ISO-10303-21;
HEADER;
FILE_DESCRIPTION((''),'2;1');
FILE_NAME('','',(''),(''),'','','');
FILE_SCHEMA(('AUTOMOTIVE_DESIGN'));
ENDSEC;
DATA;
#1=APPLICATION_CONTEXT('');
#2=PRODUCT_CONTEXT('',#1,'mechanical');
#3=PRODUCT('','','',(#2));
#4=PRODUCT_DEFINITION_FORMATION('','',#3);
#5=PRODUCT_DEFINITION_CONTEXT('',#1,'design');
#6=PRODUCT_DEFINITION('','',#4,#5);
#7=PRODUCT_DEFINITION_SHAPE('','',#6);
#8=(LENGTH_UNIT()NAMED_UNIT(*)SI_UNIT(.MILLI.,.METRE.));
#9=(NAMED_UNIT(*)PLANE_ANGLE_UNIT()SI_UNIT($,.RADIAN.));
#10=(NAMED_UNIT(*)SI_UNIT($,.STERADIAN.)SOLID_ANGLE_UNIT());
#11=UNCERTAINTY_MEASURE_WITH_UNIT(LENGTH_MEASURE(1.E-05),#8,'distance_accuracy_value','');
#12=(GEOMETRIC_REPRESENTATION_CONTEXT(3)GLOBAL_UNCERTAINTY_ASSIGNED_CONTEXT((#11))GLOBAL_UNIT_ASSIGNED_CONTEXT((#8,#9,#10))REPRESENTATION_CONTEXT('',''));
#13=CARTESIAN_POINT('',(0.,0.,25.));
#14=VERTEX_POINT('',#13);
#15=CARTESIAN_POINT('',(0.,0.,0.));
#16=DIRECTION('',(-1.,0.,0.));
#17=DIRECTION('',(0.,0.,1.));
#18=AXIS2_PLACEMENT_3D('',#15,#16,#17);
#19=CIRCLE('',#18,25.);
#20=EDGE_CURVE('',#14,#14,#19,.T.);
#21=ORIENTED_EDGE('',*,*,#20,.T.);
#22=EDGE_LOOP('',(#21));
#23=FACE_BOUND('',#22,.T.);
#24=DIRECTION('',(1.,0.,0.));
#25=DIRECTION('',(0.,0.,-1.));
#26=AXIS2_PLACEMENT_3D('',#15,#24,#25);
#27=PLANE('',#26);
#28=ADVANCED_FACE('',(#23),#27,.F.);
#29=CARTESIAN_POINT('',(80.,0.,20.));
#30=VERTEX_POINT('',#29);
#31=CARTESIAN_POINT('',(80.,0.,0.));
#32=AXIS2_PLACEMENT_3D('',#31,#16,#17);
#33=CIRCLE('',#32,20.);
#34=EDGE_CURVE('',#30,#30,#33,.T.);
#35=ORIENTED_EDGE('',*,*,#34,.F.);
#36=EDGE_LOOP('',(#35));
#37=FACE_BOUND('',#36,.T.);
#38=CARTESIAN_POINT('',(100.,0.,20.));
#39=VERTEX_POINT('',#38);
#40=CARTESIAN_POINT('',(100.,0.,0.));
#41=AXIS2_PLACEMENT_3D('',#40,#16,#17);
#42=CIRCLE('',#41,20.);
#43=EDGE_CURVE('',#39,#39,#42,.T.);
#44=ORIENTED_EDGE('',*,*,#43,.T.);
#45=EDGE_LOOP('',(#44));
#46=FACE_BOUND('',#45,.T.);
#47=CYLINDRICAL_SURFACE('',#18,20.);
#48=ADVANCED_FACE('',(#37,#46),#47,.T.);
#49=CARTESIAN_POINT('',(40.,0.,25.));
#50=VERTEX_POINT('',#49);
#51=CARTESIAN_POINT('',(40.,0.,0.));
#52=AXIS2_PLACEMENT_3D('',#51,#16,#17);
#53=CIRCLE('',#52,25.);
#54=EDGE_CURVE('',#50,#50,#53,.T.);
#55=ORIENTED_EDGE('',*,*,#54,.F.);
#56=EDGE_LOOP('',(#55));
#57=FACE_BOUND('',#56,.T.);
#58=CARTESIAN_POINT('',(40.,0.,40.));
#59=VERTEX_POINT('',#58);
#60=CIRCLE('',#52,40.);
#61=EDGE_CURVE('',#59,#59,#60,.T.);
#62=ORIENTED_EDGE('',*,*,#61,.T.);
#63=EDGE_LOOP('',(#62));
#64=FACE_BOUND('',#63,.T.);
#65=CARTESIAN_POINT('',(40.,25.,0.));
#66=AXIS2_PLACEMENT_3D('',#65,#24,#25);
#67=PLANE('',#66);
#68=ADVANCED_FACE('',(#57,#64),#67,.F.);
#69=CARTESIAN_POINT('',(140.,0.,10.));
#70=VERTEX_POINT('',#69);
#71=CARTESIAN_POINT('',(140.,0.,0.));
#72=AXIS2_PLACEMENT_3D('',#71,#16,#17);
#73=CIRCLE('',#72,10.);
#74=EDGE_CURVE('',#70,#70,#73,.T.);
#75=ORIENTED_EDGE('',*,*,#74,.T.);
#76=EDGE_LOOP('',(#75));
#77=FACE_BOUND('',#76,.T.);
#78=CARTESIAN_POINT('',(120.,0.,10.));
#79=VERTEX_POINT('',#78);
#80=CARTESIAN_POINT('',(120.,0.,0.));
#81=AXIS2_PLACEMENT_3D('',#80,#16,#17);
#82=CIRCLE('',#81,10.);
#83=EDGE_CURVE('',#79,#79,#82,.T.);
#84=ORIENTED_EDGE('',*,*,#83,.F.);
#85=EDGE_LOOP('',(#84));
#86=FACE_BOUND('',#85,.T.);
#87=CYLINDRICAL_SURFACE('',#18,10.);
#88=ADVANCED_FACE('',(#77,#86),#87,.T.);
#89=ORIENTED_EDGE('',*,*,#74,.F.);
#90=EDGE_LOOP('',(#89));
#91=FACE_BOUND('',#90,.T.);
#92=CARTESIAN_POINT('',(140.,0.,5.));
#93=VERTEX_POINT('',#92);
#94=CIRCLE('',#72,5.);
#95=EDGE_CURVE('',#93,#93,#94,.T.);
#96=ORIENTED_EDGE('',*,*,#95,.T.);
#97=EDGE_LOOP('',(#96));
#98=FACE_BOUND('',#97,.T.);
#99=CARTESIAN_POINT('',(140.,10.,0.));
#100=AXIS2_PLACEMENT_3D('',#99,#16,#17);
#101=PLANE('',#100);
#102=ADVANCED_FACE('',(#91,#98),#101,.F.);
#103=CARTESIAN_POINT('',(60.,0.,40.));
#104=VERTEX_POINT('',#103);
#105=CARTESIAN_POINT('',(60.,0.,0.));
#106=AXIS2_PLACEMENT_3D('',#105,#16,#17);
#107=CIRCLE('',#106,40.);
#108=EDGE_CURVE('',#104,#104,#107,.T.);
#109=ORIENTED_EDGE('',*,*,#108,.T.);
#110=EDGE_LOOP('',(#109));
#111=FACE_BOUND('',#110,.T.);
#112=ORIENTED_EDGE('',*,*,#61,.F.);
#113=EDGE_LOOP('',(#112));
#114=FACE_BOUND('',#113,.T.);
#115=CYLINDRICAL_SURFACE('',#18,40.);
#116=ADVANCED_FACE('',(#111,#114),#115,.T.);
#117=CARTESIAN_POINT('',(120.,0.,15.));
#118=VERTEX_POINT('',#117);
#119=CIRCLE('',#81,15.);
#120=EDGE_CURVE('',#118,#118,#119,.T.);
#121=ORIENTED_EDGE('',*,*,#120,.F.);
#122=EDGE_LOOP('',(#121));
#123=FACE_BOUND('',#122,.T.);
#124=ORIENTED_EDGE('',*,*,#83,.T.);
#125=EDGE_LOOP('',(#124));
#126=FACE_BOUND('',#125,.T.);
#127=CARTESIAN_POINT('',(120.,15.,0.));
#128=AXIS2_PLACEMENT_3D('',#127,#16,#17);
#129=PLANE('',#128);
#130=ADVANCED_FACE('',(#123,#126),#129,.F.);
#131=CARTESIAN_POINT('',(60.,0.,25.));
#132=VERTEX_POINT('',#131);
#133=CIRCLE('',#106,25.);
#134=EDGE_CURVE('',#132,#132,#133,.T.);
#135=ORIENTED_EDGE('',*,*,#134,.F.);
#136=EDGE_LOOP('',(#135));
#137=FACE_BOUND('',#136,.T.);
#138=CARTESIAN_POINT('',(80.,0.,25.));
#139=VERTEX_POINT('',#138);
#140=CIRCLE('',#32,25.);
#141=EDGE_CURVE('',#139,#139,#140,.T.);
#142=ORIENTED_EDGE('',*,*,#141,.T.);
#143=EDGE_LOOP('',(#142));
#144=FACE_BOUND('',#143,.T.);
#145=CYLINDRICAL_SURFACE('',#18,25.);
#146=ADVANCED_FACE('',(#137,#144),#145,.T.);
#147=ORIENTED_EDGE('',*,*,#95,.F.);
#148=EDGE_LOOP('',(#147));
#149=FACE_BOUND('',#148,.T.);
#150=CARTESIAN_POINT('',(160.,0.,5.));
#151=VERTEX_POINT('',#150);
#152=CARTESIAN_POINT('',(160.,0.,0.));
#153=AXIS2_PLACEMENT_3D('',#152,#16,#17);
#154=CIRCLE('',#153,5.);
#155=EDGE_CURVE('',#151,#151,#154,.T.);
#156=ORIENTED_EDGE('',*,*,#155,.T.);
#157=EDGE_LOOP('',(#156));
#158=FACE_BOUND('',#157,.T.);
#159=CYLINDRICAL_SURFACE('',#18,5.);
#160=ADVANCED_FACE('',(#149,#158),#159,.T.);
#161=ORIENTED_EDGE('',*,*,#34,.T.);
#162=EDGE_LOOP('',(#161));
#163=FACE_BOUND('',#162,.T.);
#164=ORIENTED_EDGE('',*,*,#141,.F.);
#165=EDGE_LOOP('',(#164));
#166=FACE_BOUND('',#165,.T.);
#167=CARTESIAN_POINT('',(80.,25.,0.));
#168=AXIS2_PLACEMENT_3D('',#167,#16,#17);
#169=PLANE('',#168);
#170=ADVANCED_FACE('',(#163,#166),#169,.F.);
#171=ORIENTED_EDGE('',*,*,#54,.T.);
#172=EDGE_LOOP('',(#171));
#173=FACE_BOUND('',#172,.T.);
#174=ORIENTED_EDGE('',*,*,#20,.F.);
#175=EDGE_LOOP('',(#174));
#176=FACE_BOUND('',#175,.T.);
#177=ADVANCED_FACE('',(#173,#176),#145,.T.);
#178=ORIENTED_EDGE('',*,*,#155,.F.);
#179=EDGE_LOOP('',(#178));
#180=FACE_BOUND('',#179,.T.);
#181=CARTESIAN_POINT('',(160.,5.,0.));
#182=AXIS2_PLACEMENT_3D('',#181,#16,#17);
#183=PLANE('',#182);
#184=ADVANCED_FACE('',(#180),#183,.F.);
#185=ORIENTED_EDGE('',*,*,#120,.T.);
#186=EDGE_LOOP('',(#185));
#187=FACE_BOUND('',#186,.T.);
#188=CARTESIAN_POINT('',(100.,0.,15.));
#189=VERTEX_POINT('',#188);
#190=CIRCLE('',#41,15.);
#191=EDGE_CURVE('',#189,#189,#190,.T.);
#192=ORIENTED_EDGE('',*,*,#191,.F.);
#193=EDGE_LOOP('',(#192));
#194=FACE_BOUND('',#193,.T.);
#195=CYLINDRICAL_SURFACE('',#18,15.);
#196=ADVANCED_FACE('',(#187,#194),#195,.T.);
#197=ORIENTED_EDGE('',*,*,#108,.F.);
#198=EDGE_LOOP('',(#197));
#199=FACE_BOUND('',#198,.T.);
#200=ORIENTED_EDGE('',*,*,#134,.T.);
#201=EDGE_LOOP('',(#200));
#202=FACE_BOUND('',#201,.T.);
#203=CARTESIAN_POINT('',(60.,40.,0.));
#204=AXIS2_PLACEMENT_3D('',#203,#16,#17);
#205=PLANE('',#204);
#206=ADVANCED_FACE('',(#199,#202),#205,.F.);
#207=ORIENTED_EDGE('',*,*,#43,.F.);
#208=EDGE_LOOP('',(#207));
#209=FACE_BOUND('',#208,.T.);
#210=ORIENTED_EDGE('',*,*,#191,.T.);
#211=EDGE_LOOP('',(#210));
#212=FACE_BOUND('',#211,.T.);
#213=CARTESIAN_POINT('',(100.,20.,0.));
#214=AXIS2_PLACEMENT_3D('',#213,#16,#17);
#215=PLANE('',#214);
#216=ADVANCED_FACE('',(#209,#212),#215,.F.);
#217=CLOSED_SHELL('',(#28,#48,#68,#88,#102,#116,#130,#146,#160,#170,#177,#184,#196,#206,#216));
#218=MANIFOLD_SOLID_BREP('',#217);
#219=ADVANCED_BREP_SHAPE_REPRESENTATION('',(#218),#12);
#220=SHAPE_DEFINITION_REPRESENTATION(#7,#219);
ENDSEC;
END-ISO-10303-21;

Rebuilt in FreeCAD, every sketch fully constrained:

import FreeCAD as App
import Part
import Sketcher

V = App.Vector
Q = App.Units.Quantity

doc = App.newDocument("Part")
params = doc.addObject("Spreadsheet::Sheet", "Params")
for row, (alias, value) in enumerate([
    ("sketch1_width", "160 mm"),
    ("sketch1_width2", "20 mm"),
    ("sketch1_height", "25 mm"),
    ("sketch1_height2", "15 mm"),
    ("revolution_angle", "360 deg"),
], start=1):
    params.set(f"A{row}", alias)
    params.set(f"B{row}", "=" + value)
    params.setAlias(f"B{row}", alias)

body = doc.addObject("PartDesign::Body", "Body")

# Sketch on XY plane
sketch1 = body.newObject("Sketcher::SketchObject", "Sketch")
sketch1.AttachmentSupport = (doc.getObject("XY_Plane"), [""])
sketch1.MapMode = "FlatFace"
sketch1.addGeometry([
    Part.LineSegment(V(0, 25, 0), V(0, 0, 0)),  # 0
    Part.LineSegment(V(0, 0, 0), V(160, 0, 0)),  # 1
    Part.LineSegment(V(160, 0, 0), V(160, 5, 0)),  # 2
    Part.LineSegment(V(160, 5, 0), V(140, 5, 0)),  # 3
    Part.LineSegment(V(140, 5, 0), V(140, 10, 0)),  # 4
    Part.LineSegment(V(140, 10, 0), V(120, 10, 0)),  # 5
    Part.LineSegment(V(120, 10, 0), V(120, 15, 0)),  # 6
    Part.LineSegment(V(120, 15, 0), V(100, 15, 0)),  # 7
    Part.LineSegment(V(100, 15, 0), V(100, 20, 0)),  # 8
    Part.LineSegment(V(100, 20, 0), V(80, 20, 0)),  # 9
    Part.LineSegment(V(80, 20, 0), V(80, 25, 0)),  # 10
    Part.LineSegment(V(80, 25, 0), V(60, 25, 0)),  # 11
    Part.LineSegment(V(60, 25, 0), V(60, 40, 0)),  # 12
    Part.LineSegment(V(60, 40, 0), V(40, 40, 0)),  # 13
    Part.LineSegment(V(40, 40, 0), V(40, 25, 0)),  # 14
    Part.LineSegment(V(40, 25, 0), V(0, 25, 0)),  # 15
], False)
sketch1.addConstraint([
    Sketcher.Constraint("Coincident", 0, 2, 1, 1),
    Sketcher.Constraint("Coincident", 1, 2, 2, 1),
    Sketcher.Constraint("Coincident", 2, 2, 3, 1),
    Sketcher.Constraint("Coincident", 3, 2, 4, 1),
    Sketcher.Constraint("Coincident", 4, 2, 5, 1),
    Sketcher.Constraint("Coincident", 5, 2, 6, 1),
    Sketcher.Constraint("Coincident", 6, 2, 7, 1),
    Sketcher.Constraint("Coincident", 7, 2, 8, 1),
    Sketcher.Constraint("Coincident", 8, 2, 9, 1),
    Sketcher.Constraint("Coincident", 9, 2, 10, 1),
    Sketcher.Constraint("Coincident", 10, 2, 11, 1),
    Sketcher.Constraint("Coincident", 11, 2, 12, 1),
    Sketcher.Constraint("Coincident", 12, 2, 13, 1),
    Sketcher.Constraint("Coincident", 13, 2, 14, 1),
    Sketcher.Constraint("Coincident", 14, 2, 15, 1),
    Sketcher.Constraint("Coincident", 15, 2, 0, 1),
    Sketcher.Constraint("Vertical", 0),
    Sketcher.Constraint("Horizontal", 1),
    Sketcher.Constraint("Vertical", 2),
    Sketcher.Constraint("Horizontal", 3),
    Sketcher.Constraint("Vertical", 4),
    Sketcher.Constraint("Horizontal", 5),
    Sketcher.Constraint("Vertical", 6),
    Sketcher.Constraint("Horizontal", 7),
    Sketcher.Constraint("Vertical", 8),
    Sketcher.Constraint("Horizontal", 9),
    Sketcher.Constraint("Vertical", 10),
    Sketcher.Constraint("Horizontal", 11),
    Sketcher.Constraint("Vertical", 12),
    Sketcher.Constraint("Horizontal", 13),
    Sketcher.Constraint("Vertical", 14),
    Sketcher.Constraint("Horizontal", 15),
    Sketcher.Constraint("Coincident", 0, 2, -1, 1),
    Sketcher.Constraint("Horizontal", 11, 2, 14, 2),
    Sketcher.Constraint("Equal", 3, 5),
    Sketcher.Constraint("Equal", 5, 7),
    Sketcher.Constraint("Equal", 7, 9),
    Sketcher.Constraint("Equal", 9, 11),
    Sketcher.Constraint("Equal", 11, 13),
    Sketcher.Constraint("Equal", 2, 4),
    Sketcher.Constraint("Equal", 4, 6),
    Sketcher.Constraint("Equal", 6, 8),
    Sketcher.Constraint("Equal", 8, 10),
    Sketcher.Constraint("DistanceX", 1, 1, 1, 2, Q("160 mm")),
    Sketcher.Constraint("DistanceX", 3, 2, 3, 1, Q("20 mm")),
    Sketcher.Constraint("DistanceY", 0, 2, 0, 1, Q("25 mm")),
    Sketcher.Constraint("DistanceY", 12, 1, 12, 2, Q("15 mm")),
])
sketch1.setExpression("Constraints[43]", "Params.sketch1_width")
sketch1.setExpression("Constraints[44]", "Params.sketch1_width2")
sketch1.setExpression("Constraints[45]", "Params.sketch1_height")
sketch1.setExpression("Constraints[46]", "Params.sketch1_height2")
revolution = body.newObject("PartDesign::Revolution", "Revolution")
revolution.Profile = sketch1
revolution.ReferenceAxis = (sketch1, ["H_Axis"])
revolution.setExpression("Angle", "Params.revolution_angle")

doc.recompute()
